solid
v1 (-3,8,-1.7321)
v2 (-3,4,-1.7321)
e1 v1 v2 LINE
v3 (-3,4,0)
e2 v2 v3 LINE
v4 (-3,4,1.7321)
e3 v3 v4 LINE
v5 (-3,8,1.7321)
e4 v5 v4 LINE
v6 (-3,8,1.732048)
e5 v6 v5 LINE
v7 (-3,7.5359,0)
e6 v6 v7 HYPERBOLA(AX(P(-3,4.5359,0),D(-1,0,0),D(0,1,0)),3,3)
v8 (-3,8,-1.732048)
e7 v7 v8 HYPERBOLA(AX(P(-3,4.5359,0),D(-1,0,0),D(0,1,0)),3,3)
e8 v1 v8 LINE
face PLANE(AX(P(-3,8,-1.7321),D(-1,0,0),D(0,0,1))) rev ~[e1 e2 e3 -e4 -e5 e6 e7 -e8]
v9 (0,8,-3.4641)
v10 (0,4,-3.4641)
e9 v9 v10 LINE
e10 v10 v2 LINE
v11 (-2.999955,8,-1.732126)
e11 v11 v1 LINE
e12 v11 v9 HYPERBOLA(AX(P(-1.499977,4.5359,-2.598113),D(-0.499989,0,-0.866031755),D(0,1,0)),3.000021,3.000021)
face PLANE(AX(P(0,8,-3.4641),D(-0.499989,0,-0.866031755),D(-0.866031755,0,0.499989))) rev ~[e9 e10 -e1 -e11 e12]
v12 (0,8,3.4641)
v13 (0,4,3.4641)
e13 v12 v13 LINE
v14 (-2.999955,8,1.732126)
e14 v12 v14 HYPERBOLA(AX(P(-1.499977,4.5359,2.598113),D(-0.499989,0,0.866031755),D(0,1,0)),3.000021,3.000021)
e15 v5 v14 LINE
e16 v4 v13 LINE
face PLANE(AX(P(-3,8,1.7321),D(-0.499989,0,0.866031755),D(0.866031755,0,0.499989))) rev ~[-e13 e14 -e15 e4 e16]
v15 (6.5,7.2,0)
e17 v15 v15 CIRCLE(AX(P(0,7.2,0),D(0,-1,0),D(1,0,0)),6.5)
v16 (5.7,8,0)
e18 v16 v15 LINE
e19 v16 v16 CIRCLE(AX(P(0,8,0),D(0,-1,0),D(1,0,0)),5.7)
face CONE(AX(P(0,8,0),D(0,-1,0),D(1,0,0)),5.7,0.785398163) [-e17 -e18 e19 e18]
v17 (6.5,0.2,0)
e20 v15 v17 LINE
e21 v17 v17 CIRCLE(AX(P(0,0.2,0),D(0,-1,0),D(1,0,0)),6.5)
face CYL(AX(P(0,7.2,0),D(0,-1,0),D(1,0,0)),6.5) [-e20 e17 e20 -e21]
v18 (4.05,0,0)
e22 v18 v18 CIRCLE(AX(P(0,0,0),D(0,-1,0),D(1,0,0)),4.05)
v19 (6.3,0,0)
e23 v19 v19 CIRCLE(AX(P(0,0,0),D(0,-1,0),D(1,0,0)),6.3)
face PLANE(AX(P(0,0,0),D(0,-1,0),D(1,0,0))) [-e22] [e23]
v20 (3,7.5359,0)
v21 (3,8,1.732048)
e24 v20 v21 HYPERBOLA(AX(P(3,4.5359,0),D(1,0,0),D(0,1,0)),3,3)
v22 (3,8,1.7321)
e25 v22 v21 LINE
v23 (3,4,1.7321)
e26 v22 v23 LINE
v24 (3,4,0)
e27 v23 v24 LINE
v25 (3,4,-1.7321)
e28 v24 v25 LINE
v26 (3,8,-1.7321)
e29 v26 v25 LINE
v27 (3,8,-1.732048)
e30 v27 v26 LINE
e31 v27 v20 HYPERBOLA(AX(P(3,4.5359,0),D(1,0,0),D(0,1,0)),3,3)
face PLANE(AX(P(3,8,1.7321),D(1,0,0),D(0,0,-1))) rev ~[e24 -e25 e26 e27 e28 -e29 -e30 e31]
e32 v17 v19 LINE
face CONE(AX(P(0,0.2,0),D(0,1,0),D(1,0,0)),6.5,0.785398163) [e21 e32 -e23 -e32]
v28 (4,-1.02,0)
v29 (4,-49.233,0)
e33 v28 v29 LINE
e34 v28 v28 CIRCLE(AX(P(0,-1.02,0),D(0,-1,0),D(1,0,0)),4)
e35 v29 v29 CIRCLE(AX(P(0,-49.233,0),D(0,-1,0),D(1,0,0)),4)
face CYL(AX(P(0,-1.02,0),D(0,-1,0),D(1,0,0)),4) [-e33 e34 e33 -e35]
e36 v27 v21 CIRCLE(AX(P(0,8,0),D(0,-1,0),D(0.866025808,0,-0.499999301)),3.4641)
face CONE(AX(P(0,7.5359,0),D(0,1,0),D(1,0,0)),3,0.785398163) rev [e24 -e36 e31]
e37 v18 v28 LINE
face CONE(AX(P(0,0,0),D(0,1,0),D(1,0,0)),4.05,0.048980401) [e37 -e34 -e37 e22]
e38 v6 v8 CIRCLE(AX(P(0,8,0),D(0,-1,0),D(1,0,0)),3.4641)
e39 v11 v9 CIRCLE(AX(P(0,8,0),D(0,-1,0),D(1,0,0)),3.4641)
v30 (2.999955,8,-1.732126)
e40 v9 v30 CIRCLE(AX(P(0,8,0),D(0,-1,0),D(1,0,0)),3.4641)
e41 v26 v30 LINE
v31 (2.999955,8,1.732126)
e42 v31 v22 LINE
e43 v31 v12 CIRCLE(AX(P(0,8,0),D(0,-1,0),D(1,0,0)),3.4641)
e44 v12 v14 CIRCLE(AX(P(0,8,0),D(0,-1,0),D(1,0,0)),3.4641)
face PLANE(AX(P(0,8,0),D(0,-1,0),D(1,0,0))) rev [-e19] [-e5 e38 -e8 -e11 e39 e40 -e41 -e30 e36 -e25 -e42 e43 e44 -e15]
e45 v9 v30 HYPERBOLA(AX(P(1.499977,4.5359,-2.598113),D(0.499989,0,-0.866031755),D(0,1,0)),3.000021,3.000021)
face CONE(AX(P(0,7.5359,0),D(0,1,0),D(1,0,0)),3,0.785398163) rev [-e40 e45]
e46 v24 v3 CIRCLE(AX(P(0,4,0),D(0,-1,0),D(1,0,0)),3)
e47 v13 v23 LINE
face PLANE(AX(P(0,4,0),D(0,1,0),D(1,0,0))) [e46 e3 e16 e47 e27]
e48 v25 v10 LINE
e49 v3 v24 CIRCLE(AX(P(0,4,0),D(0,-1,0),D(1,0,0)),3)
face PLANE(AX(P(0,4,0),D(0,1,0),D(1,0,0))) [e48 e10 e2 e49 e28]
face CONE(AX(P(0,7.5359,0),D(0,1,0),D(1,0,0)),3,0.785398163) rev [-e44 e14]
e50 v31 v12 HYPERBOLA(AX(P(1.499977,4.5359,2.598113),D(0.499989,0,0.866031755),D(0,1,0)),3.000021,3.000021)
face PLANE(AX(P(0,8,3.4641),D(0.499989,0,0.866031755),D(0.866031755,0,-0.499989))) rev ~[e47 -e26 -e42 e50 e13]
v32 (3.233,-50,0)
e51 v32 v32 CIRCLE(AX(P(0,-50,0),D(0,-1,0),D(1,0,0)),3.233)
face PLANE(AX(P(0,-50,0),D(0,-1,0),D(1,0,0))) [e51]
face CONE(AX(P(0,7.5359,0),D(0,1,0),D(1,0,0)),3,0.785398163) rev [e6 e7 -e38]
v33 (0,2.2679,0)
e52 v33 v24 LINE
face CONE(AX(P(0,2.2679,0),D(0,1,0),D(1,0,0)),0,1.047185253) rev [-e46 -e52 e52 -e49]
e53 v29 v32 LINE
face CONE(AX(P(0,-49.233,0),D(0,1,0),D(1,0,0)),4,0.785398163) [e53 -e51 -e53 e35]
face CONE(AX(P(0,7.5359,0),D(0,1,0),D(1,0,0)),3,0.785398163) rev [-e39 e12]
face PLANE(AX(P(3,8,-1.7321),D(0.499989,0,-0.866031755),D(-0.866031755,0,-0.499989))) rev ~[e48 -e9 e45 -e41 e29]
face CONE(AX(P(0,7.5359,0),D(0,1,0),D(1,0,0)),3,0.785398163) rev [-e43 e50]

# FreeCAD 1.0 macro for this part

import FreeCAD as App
import Part
import Sketcher
from FreeCAD import Vector
Q = App.Units.Quantity

doc = App.newDocument("Part")
body = doc.addObject("PartDesign::Body", "Body")

# Sketch on XY plane
sketch1 = doc.addObject("Sketcher::SketchObject", "Sketch")
body.addObject(sketch1)
sketch1.AttachmentSupport = (doc.XY_Plane, [""])
sketch1.MapMode = "FlatFace"
sketch1.addGeometry(Part.LineSegment(Vector(0, 2.27, 0), Vector(0, -50, 0)), False)
sketch1.addGeometry(Part.LineSegment(Vector(0, -50, 0), Vector(3.23, -50, 0)), False)
sketch1.addGeometry(Part.LineSegment(Vector(3.23, -50, 0), Vector(4, -49.23, 0)), False)
sketch1.addGeometry(Part.LineSegment(Vector(4, -49.23, 0), Vector(4, -1.02, 0)), False)
sketch1.addGeometry(Part.LineSegment(Vector(4, -1.02, 0), Vector(4.05, 0, 0)), False)
sketch1.addGeometry(Part.LineSegment(Vector(4.05, 0, 0), Vector(6.3, 0, 0)), False)
sketch1.addGeometry(Part.LineSegment(Vector(6.3, 0, 0), Vector(6.5, 0.2, 0)), False)
sketch1.addGeometry(Part.LineSegment(Vector(6.5, 0.2, 0), Vector(6.5, 7.2, 0)), False)
sketch1.addGeometry(Part.LineSegment(Vector(6.5, 7.2, 0), Vector(5.7, 8, 0)), False)
sketch1.addGeometry(Part.LineSegment(Vector(5.7, 8, 0), Vector(3.46, 8, 0)), False)
sketch1.addGeometry(Part.LineSegment(Vector(3.46, 8, 0), Vector(3, 7.54, 0)), False)
sketch1.addGeometry(Part.LineSegment(Vector(3, 7.54, 0), Vector(3, 4, 0)), False)
sketch1.addGeometry(Part.LineSegment(Vector(3, 4, 0), Vector(0, 2.27, 0)), False)
sketch1.addConstraint(Sketcher.Constraint("Coincident", 0, 2, 1, 1))
sketch1.addConstraint(Sketcher.Constraint("Coincident", 1, 2, 2, 1))
sketch1.addConstraint(Sketcher.Constraint("Coincident", 2, 2, 3, 1))
sketch1.addConstraint(Sketcher.Constraint("Coincident", 3, 2, 4, 1))
sketch1.addConstraint(Sketcher.Constraint("Coincident", 4, 2, 5, 1))
sketch1.addConstraint(Sketcher.Constraint("Coincident", 5, 2, 6, 1))
sketch1.addConstraint(Sketcher.Constraint("Coincident", 6, 2, 7, 1))
sketch1.addConstraint(Sketcher.Constraint("Coincident", 7, 2, 8, 1))
sketch1.addConstraint(Sketcher.Constraint("Coincident", 8, 2, 9, 1))
sketch1.addConstraint(Sketcher.Constraint("Coincident", 9, 2, 10, 1))
sketch1.addConstraint(Sketcher.Constraint("Coincident", 10, 2, 11, 1))
sketch1.addConstraint(Sketcher.Constraint("Coincident", 11, 2, 12, 1))
sketch1.addConstraint(Sketcher.Constraint("Coincident", 12, 2, 0, 1))
sketch1.addConstraint(Sketcher.Constraint("Vertical", 0))
sketch1.addConstraint(Sketcher.Constraint("Horizontal", 1))
sketch1.addConstraint(Sketcher.Constraint("Vertical", 3))
sketch1.addConstraint(Sketcher.Constraint("Horizontal", 5))
sketch1.addConstraint(Sketcher.Constraint("Vertical", 7))
sketch1.addConstraint(Sketcher.Constraint("Horizontal", 9))
sketch1.addConstraint(Sketcher.Constraint("Vertical", 11))
sketch1.addConstraint(Sketcher.Constraint("PointOnObject", 0, 2, -2))
sketch1.addConstraint(Sketcher.Constraint("PointOnObject", 4, 2, -1))
sketch1.addConstraint(Sketcher.Constraint("Parallel", 2, 6))
sketch1.addConstraint(Sketcher.Constraint("Perpendicular", 6, 8))
sketch1.addConstraint(Sketcher.Constraint("Perpendicular", 8, 10))
sketch1.addConstraint(Sketcher.Constraint("DistanceY", 7, 1, 7, 2, Q("7 mm")))
sketch1.addConstraint(Sketcher.Constraint("Angle", 2, Q("45 deg")))
sketch1.addConstraint(Sketcher.Constraint("Angle", 12, Q("-149.9993 deg")))
sketch1.addConstraint(Sketcher.Constraint("DistanceY", 0, 2, -1, 1, Q("50 mm")))
sketch1.addConstraint(Sketcher.Constraint("DistanceX", -1, 1, 2, 2, Q("4 mm")))
sketch1.addConstraint(Sketcher.Constraint("DistanceY", -1, 1, 8, 2, Q("8 mm")))
sketch1.addConstraint(Sketcher.Constraint("DistanceX", -1, 1, 10, 2, Q("3 mm")))
sketch1.addConstraint(Sketcher.Constraint("DistanceY", -1, 1, 11, 2, Q("4 mm")))
sketch1.addConstraint(Sketcher.Constraint("DistanceX", 5, 1, 5, 2, Q("2.25 mm")))
sketch1.addConstraint(Sketcher.Constraint("DistanceX", -1, 1, 5, 2, Q("6.3 mm")))
sketch1.addConstraint(Sketcher.Constraint("DistanceX", -1, 1, 6, 2, Q("6.5 mm")))
sketch1.addConstraint(Sketcher.Constraint("DistanceX", 1, 1, 1, 2, Q("3.233 mm")))
sketch1.addConstraint(Sketcher.Constraint("DistanceX", 9, 2, 9, 1, Q("2.236 mm")))
sketch1.addConstraint(Sketcher.Constraint("DistanceY", 3, 1, 3, 2, Q("48.213 mm")))
revolution = doc.addObject("PartDesign::Revolution", "Revolution")
body.addObject(revolution)
revolution.Profile = sketch1
revolution.ReferenceAxis = (sketch1, ["V_Axis"])
revolution.Angle = 360

# Sketch on XZ plane
sketch2 = doc.addObject("Sketcher::SketchObject", "Sketch001")
body.addObject(sketch2)
sketch2.AttachmentSupport = (doc.XZ_Plane, [""])
sketch2.MapMode = "FlatFace"
sketch2.AttachmentOffset = App.Placement(Vector(0, 0, -8), App.Rotation())
sketch2.addGeometry(Part.LineSegment(Vector(-3, -1.7, 0), Vector(-3, 1.7, 0)), False)
sketch2.addGeometry(Part.LineSegment(Vector(-3, 1.7, 0), Vector(0, 3.5, 0)), False)
sketch2.addGeometry(Part.LineSegment(Vector(0, 3.5, 0), Vector(3, 1.7, 0)), False)
sketch2.addGeometry(Part.LineSegment(Vector(3, 1.7, 0), Vector(3, -1.7, 0)), False)
sketch2.addGeometry(Part.LineSegment(Vector(3, -1.7, 0), Vector(0, -3.5, 0)), False)
sketch2.addGeometry(Part.LineSegment(Vector(0, -3.5, 0), Vector(-3, -1.7, 0)), False)
sketch2.addConstraint(Sketcher.Constraint("Coincident", 0, 2, 1, 1))
sketch2.addConstraint(Sketcher.Constraint("Coincident", 1, 2, 2, 1))
sketch2.addConstraint(Sketcher.Constraint("Coincident", 2, 2, 3, 1))
sketch2.addConstraint(Sketcher.Constraint("Coincident", 3, 2, 4, 1))
sketch2.addConstraint(Sketcher.Constraint("Coincident", 4, 2, 5, 1))
sketch2.addConstraint(Sketcher.Constraint("Coincident", 5, 2, 0, 1))
sketch2.addConstraint(Sketcher.Constraint("Vertical", 0))
sketch2.addConstraint(Sketcher.Constraint("Vertical", 3))
sketch2.addConstraint(Sketcher.Constraint("Symmetric", 0, 2, 3, 2, -1, 1))
sketch2.addConstraint(Sketcher.Constraint("Symmetric", 1, 2, 4, 2, -1, 1))
sketch2.addConstraint(Sketcher.Constraint("PointOnObject", 1, 2, -2))
sketch2.addConstraint(Sketcher.Constraint("Parallel", 2, 5))
sketch2.addConstraint(Sketcher.Constraint("Horizontal", 0, 2, 2, 2))
sketch2.addConstraint(Sketcher.Constraint("Angle", 1, Q("29.9993 deg")))
sketch2.addConstraint(Sketcher.Constraint("DistanceX", 0, 2, -1, 1, Q("3 mm")))
sketch2.addConstraint(Sketcher.Constraint("DistanceY", 0, 1, 0, 2, Q("3.4642 mm")))
pocket1 = doc.addObject("PartDesign::Pocket", "Pocket")
body.addObject(pocket1)
pocket1.Profile = sketch2
pocket1.Length = 4
pocket1.Reversed = True

doc.recompute()
